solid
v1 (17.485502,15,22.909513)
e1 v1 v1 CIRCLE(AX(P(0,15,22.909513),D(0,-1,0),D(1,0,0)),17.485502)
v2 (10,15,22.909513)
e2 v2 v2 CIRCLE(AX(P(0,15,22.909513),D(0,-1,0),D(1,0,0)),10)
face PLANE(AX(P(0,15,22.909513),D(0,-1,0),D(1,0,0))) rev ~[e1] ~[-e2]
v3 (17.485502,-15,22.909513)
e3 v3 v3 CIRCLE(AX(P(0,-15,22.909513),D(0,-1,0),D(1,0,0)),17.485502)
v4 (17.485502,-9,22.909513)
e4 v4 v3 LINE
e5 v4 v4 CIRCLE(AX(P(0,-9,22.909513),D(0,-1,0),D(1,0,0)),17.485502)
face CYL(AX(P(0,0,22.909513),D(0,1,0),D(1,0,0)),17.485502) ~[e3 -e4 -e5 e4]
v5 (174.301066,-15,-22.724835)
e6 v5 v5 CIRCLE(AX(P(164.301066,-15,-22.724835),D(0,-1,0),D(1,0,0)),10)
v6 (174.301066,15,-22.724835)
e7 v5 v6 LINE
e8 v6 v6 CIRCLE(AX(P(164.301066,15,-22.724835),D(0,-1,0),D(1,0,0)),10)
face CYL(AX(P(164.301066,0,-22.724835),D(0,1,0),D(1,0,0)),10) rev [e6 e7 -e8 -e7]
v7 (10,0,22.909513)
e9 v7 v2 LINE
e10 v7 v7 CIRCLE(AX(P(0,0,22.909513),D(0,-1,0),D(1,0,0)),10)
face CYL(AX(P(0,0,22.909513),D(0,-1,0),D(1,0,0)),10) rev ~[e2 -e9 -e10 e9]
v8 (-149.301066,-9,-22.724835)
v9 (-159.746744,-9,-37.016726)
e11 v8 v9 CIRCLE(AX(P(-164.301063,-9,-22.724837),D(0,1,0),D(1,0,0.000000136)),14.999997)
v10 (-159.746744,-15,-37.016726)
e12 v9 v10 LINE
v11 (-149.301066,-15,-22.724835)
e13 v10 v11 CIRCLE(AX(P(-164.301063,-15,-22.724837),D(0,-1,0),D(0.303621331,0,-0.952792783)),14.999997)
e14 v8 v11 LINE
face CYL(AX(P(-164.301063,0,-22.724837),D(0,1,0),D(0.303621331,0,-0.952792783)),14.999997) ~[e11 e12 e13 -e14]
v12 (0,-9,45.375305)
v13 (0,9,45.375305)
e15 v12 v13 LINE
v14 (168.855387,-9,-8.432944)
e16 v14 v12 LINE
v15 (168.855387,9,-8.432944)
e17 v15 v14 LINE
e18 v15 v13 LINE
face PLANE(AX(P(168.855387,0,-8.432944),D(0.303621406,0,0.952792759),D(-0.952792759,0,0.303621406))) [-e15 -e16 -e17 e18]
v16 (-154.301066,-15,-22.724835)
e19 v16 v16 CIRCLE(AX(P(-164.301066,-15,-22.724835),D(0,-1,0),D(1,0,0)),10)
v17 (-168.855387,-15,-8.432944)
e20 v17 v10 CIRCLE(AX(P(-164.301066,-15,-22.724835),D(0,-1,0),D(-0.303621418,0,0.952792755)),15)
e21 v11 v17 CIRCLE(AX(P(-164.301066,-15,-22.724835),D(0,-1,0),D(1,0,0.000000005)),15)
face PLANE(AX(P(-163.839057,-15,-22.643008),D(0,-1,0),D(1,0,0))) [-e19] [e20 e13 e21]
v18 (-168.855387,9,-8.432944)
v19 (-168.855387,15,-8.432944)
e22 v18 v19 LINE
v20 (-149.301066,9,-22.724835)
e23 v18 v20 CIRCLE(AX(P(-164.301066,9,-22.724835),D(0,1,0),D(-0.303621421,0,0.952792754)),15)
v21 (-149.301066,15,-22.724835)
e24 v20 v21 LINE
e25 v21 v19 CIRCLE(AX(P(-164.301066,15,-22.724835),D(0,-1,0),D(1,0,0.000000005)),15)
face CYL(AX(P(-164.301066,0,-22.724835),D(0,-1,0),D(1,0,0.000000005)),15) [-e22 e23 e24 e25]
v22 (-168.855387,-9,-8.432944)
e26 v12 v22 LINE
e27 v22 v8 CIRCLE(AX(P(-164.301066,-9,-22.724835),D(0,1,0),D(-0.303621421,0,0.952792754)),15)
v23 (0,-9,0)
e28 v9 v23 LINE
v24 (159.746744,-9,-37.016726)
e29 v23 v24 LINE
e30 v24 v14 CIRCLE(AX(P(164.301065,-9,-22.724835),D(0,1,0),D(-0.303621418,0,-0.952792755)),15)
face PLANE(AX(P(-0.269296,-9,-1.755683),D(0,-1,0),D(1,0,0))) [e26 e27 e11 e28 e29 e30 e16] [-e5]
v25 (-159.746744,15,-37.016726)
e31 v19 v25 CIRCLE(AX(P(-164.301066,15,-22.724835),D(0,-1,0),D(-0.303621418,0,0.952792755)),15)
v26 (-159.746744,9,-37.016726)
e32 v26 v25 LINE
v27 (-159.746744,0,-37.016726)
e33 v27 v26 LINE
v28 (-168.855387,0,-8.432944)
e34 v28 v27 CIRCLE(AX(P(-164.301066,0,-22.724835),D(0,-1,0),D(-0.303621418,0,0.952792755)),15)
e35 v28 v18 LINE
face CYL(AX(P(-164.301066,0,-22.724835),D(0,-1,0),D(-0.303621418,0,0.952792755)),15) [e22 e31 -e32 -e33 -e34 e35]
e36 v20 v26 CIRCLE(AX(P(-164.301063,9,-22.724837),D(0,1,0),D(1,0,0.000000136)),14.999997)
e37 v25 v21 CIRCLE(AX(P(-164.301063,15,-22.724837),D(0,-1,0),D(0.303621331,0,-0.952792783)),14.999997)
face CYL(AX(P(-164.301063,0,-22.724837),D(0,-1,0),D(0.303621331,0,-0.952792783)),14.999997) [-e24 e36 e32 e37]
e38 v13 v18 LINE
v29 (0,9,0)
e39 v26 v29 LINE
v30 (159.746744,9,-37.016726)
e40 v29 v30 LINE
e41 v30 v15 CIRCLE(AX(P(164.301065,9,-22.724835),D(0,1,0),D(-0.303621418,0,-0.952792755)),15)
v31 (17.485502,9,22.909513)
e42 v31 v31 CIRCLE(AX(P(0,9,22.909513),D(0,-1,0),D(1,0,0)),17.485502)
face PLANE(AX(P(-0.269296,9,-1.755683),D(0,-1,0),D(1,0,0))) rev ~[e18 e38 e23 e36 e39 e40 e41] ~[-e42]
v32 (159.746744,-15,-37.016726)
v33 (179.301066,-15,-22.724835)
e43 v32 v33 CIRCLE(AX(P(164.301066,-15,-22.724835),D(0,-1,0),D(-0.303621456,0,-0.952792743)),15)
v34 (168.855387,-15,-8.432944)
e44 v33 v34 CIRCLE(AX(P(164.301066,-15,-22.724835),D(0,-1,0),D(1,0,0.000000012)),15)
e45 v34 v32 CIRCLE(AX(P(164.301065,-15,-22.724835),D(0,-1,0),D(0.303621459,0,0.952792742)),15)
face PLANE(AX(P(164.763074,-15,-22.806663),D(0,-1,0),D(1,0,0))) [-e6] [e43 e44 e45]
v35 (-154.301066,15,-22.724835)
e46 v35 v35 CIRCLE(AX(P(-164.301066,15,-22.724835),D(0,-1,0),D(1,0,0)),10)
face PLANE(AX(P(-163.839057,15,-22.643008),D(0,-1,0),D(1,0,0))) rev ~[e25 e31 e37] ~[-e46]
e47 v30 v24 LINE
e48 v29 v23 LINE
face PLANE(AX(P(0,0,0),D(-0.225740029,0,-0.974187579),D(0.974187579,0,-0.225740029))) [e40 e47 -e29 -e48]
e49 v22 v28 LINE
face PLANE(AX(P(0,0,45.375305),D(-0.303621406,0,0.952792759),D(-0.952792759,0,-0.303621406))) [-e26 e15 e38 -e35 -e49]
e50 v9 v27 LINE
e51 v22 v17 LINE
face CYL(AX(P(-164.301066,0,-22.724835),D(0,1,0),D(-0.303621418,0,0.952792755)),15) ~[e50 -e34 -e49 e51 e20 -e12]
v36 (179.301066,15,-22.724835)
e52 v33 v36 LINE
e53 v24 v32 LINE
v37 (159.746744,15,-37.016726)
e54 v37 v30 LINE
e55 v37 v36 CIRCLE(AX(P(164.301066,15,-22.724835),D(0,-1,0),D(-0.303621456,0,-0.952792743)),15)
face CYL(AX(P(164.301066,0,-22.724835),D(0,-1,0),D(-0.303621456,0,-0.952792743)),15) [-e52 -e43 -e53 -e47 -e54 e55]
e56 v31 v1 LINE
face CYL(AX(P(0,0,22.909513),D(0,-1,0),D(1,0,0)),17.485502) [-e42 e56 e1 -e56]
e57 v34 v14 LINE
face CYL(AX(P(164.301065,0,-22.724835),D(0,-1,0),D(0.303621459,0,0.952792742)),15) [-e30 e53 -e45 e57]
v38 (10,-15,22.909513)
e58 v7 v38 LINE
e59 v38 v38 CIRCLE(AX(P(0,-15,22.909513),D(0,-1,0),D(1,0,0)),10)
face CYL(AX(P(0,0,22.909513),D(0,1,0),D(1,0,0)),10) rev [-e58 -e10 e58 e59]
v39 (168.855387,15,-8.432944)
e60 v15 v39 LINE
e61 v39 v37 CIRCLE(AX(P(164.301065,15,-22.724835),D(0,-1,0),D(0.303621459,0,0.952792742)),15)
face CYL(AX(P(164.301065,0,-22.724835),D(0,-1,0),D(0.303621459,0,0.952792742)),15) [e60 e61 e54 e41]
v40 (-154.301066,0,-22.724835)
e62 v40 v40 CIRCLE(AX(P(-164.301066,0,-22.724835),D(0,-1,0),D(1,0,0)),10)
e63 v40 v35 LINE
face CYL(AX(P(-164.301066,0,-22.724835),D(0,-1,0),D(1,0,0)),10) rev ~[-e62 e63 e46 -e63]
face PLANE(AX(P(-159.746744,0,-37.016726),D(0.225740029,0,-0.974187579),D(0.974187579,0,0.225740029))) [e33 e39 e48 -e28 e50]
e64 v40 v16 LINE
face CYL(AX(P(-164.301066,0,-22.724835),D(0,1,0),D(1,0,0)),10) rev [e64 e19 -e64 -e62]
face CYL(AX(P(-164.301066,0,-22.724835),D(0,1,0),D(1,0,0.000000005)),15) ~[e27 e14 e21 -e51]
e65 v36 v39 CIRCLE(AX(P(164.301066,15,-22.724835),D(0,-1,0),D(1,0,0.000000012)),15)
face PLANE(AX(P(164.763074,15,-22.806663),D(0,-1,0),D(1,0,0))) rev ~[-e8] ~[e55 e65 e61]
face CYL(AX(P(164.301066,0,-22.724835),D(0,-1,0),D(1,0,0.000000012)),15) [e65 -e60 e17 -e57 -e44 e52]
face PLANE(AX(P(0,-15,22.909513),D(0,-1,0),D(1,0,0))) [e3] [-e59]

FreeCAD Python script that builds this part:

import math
import FreeCAD as App
import Part
import Sketcher

doc = App.newDocument("Part")
params = doc.addObject("Spreadsheet::Sheet", "Params")
for row, (alias, value) in enumerate([
    ("sketch1_radius", "15 mm"),
    ("pad1_length", "18 mm"),
    ("sketch2_diameter", "20 mm"),
    ("sketch2_radius", "15 mm"),
    ("pad2_length", "30 mm"),
], start=1):
    params.set(f"A{row}", alias)
    params.set(f"B{row}", "=" + value)
    params.setAlias(f"B{row}", alias)

body = doc.addObject("PartDesign::Body", "Body")

sketch1 = body.newObject("Sketcher::SketchObject", "Sketch")
sketch1.AttachmentSupport = (doc.getObject("XZ_Plane"), [""])
sketch1.MapMode = "FlatFace"
sketch1.addGeometry([
    Part.LineSegment(App.Vector(-159.746744, -37.016726, 0), App.Vector(0, 0, 0)),
    Part.LineSegment(App.Vector(0, 0, 0), App.Vector(159.746744, -37.016726, 0)),
    Part.ArcOfCircle(Part.Circle(App.Vector(164.301065, -22.724835, 0), App.Vector(0, 0, 1), 15), math.radians(72.324753), math.radians(252.324756)),
    Part.LineSegment(App.Vector(168.855387, -8.432944, 0), App.Vector(0, 45.375305, 0)),
    Part.LineSegment(App.Vector(0, 45.375305, 0), App.Vector(-168.855387, -8.432944, 0)),
    Part.ArcOfCircle(Part.Circle(App.Vector(-164.301066, -22.724835, 0), App.Vector(0, 0, 1), 15), math.radians(0), math.radians(107.675245)),
    Part.ArcOfCircle(Part.Circle(App.Vector(-164.301063, -22.724837, 0), App.Vector(0, 0, 1), 14.999997), math.radians(-72.324761), math.radians(0.000008)),
    Part.Circle(App.Vector(0, 22.909513, 0), App.Vector(0, 0, 1), 17.485502),
], False)
sketch1.addConstraint([
    Sketcher.Constraint("Coincident", 0, 2, 1, 1),
    Sketcher.Constraint("Coincident", 1, 2, 2, 2),
    Sketcher.Constraint("Tangent", 2, 1, 3, 1),
    Sketcher.Constraint("Coincident", 3, 2, 4, 1),
    Sketcher.Constraint("Tangent", 4, 2, 5, 2),
    Sketcher.Constraint("Tangent", 5, 1, 6, 2),
    Sketcher.Constraint("Coincident", 6, 1, 0, 1),
    Sketcher.Constraint("Coincident", 0, 2, -1, 1),
    Sketcher.Constraint("Equal", 2, 5),
    Sketcher.Constraint("Symmetric", 2, 3, 5, 3, -2),
    Sketcher.Constraint("Symmetric", 1, 2, 6, 1, -2),
    Sketcher.Constraint("PointOnObject", 7, 3, -2),
    Sketcher.Constraint("PointOnObject", 3, 2, -2),
    Sketcher.Constraint("Horizontal", 2, 3, 5, 1),
    Sketcher.Constraint("Radius", 2, 15.0),
    Sketcher.Constraint("Diameter", 7, 34.971004),
    Sketcher.Constraint("Distance", 0, 163.979451),
    Sketcher.Constraint("DistanceX", 5, 3, 2, 3, 328.602131),
    Sketcher.Constraint("DistanceY", 6, 3, 7, 3, 45.63435),
    Sketcher.Constraint("DistanceX", 1, 2, 2, 3, 4.554321),
    Sketcher.Constraint("DistanceX", 2, 3, 2, 1, 4.554322),
])
sketch1.setExpression("Constraints[14]", "Params.sketch1_radius")
pad1 = body.newObject("PartDesign::Pad", "Pad")
pad1.Profile = sketch1
pad1.setExpression("Length", "Params.pad1_length")
pad1.Midplane = True

sketch2 = body.newObject("Sketcher::SketchObject", "Sketch001")
sketch2.AttachmentSupport = (doc.getObject("XZ_Plane"), [""])
sketch2.MapMode = "FlatFace"
sketch2.addGeometry([
    Part.ArcOfCircle(Part.Circle(App.Vector(-164.301066, -22.724835, 0), App.Vector(0, 0, 1), 15), math.radians(107.675244), math.radians(287.675247)),
    Part.ArcOfCircle(Part.Circle(App.Vector(-164.301063, -22.724837, 0), App.Vector(0, 0, 1), 14.999997), math.radians(-72.324761), math.radians(0.000008)),
    Part.ArcOfCircle(Part.Circle(App.Vector(-164.301066, -22.724835, 0), App.Vector(0, 0, 1), 15), math.radians(0), math.radians(107.675245)),
    Part.Circle(App.Vector(-164.301066, -22.724835, 0), App.Vector(0, 0, 1), 10),
    Part.Circle(App.Vector(0, 22.909513, 0), App.Vector(0, 0, 1), 17.485502),
    Part.Circle(App.Vector(0, 22.909513, 0), App.Vector(0, 0, 1), 10),
    Part.ArcOfCircle(Part.Circle(App.Vector(164.301065, -22.724835, 0), App.Vector(0, 0, 1), 15), math.radians(72.324753), math.radians(252.324756)),
    Part.ArcOfCircle(Part.Circle(App.Vector(164.301066, -22.724835, 0), App.Vector(0, 0, 1), 15), math.radians(-107.675247), math.radians(-0.000001)),
    Part.ArcOfCircle(Part.Circle(App.Vector(164.301066, -22.724835, 0), App.Vector(0, 0, 1), 15), math.radians(0.000001), math.radians(72.324758)),
    Part.Circle(App.Vector(164.301066, -22.724835, 0), App.Vector(0, 0, 1), 10),
], False)
sketch2.addConstraint([
    Sketcher.Constraint("Tangent", 0, 2, 1, 1),
    Sketcher.Constraint("Tangent", 1, 2, 2, 1),
    Sketcher.Constraint("Tangent", 2, 2, 0, 1),
    Sketcher.Constraint("Tangent", 6, 2, 7, 1),
    Sketcher.Constraint("Tangent", 7, 2, 8, 1),
    Sketcher.Constraint("Tangent", 8, 2, 6, 1),
    Sketcher.Constraint("Coincident", 3, 3, 0, 3),
    Sketcher.Constraint("Coincident", 5, 3, 4, 3),
    Sketcher.Constraint("Coincident", 9, 3, 6, 3),
    Sketcher.Constraint("Equal", 3, 5),
    Sketcher.Constraint("Equal", 2, 6),
    Sketcher.Constraint("Equal", 5, 9),
    Sketcher.Constraint("Symmetric", 0, 3, 6, 3, -2),
    Sketcher.Constraint("PointOnObject", 4, 3, -2),
    Sketcher.Constraint("Horizontal", 9, 3, 1, 2),
    Sketcher.Constraint("Horizontal", 0, 2, 6, 2),
    Sketcher.Constraint("Horizontal", 1, 2, 7, 2),
    Sketcher.Constraint("Horizontal", 2, 2, 8, 2),
    Sketcher.Constraint("Diameter", 3, 20.0),
    Sketcher.Constraint("Radius", 0, 15.0),
    Sketcher.Constraint("Diameter", 4, 34.971004),
    Sketcher.Constraint("DistanceY", 1, 3, 4, 3, 45.63435),
    Sketcher.Constraint("DistanceX", 1, 3, 6, 3, 328.602128),
    Sketcher.Constraint("DistanceX", 1, 3, 0, 2, 4.554319),
    Sketcher.Constraint("DistanceX", 2, 2, 3, 3, 4.554321),
    Sketcher.Constraint("DistanceY", 0, 3, -1, 1, 22.724835),
])
sketch2.setExpression("Constraints[18]", "Params.sketch2_diameter")
sketch2.setExpression("Constraints[19]", "Params.sketch2_radius")
pad2 = body.newObject("PartDesign::Pad", "Pad001")
pad2.Profile = sketch2
pad2.setExpression("Length", "Params.pad2_length")
pad2.Midplane = True

doc.recompute()
